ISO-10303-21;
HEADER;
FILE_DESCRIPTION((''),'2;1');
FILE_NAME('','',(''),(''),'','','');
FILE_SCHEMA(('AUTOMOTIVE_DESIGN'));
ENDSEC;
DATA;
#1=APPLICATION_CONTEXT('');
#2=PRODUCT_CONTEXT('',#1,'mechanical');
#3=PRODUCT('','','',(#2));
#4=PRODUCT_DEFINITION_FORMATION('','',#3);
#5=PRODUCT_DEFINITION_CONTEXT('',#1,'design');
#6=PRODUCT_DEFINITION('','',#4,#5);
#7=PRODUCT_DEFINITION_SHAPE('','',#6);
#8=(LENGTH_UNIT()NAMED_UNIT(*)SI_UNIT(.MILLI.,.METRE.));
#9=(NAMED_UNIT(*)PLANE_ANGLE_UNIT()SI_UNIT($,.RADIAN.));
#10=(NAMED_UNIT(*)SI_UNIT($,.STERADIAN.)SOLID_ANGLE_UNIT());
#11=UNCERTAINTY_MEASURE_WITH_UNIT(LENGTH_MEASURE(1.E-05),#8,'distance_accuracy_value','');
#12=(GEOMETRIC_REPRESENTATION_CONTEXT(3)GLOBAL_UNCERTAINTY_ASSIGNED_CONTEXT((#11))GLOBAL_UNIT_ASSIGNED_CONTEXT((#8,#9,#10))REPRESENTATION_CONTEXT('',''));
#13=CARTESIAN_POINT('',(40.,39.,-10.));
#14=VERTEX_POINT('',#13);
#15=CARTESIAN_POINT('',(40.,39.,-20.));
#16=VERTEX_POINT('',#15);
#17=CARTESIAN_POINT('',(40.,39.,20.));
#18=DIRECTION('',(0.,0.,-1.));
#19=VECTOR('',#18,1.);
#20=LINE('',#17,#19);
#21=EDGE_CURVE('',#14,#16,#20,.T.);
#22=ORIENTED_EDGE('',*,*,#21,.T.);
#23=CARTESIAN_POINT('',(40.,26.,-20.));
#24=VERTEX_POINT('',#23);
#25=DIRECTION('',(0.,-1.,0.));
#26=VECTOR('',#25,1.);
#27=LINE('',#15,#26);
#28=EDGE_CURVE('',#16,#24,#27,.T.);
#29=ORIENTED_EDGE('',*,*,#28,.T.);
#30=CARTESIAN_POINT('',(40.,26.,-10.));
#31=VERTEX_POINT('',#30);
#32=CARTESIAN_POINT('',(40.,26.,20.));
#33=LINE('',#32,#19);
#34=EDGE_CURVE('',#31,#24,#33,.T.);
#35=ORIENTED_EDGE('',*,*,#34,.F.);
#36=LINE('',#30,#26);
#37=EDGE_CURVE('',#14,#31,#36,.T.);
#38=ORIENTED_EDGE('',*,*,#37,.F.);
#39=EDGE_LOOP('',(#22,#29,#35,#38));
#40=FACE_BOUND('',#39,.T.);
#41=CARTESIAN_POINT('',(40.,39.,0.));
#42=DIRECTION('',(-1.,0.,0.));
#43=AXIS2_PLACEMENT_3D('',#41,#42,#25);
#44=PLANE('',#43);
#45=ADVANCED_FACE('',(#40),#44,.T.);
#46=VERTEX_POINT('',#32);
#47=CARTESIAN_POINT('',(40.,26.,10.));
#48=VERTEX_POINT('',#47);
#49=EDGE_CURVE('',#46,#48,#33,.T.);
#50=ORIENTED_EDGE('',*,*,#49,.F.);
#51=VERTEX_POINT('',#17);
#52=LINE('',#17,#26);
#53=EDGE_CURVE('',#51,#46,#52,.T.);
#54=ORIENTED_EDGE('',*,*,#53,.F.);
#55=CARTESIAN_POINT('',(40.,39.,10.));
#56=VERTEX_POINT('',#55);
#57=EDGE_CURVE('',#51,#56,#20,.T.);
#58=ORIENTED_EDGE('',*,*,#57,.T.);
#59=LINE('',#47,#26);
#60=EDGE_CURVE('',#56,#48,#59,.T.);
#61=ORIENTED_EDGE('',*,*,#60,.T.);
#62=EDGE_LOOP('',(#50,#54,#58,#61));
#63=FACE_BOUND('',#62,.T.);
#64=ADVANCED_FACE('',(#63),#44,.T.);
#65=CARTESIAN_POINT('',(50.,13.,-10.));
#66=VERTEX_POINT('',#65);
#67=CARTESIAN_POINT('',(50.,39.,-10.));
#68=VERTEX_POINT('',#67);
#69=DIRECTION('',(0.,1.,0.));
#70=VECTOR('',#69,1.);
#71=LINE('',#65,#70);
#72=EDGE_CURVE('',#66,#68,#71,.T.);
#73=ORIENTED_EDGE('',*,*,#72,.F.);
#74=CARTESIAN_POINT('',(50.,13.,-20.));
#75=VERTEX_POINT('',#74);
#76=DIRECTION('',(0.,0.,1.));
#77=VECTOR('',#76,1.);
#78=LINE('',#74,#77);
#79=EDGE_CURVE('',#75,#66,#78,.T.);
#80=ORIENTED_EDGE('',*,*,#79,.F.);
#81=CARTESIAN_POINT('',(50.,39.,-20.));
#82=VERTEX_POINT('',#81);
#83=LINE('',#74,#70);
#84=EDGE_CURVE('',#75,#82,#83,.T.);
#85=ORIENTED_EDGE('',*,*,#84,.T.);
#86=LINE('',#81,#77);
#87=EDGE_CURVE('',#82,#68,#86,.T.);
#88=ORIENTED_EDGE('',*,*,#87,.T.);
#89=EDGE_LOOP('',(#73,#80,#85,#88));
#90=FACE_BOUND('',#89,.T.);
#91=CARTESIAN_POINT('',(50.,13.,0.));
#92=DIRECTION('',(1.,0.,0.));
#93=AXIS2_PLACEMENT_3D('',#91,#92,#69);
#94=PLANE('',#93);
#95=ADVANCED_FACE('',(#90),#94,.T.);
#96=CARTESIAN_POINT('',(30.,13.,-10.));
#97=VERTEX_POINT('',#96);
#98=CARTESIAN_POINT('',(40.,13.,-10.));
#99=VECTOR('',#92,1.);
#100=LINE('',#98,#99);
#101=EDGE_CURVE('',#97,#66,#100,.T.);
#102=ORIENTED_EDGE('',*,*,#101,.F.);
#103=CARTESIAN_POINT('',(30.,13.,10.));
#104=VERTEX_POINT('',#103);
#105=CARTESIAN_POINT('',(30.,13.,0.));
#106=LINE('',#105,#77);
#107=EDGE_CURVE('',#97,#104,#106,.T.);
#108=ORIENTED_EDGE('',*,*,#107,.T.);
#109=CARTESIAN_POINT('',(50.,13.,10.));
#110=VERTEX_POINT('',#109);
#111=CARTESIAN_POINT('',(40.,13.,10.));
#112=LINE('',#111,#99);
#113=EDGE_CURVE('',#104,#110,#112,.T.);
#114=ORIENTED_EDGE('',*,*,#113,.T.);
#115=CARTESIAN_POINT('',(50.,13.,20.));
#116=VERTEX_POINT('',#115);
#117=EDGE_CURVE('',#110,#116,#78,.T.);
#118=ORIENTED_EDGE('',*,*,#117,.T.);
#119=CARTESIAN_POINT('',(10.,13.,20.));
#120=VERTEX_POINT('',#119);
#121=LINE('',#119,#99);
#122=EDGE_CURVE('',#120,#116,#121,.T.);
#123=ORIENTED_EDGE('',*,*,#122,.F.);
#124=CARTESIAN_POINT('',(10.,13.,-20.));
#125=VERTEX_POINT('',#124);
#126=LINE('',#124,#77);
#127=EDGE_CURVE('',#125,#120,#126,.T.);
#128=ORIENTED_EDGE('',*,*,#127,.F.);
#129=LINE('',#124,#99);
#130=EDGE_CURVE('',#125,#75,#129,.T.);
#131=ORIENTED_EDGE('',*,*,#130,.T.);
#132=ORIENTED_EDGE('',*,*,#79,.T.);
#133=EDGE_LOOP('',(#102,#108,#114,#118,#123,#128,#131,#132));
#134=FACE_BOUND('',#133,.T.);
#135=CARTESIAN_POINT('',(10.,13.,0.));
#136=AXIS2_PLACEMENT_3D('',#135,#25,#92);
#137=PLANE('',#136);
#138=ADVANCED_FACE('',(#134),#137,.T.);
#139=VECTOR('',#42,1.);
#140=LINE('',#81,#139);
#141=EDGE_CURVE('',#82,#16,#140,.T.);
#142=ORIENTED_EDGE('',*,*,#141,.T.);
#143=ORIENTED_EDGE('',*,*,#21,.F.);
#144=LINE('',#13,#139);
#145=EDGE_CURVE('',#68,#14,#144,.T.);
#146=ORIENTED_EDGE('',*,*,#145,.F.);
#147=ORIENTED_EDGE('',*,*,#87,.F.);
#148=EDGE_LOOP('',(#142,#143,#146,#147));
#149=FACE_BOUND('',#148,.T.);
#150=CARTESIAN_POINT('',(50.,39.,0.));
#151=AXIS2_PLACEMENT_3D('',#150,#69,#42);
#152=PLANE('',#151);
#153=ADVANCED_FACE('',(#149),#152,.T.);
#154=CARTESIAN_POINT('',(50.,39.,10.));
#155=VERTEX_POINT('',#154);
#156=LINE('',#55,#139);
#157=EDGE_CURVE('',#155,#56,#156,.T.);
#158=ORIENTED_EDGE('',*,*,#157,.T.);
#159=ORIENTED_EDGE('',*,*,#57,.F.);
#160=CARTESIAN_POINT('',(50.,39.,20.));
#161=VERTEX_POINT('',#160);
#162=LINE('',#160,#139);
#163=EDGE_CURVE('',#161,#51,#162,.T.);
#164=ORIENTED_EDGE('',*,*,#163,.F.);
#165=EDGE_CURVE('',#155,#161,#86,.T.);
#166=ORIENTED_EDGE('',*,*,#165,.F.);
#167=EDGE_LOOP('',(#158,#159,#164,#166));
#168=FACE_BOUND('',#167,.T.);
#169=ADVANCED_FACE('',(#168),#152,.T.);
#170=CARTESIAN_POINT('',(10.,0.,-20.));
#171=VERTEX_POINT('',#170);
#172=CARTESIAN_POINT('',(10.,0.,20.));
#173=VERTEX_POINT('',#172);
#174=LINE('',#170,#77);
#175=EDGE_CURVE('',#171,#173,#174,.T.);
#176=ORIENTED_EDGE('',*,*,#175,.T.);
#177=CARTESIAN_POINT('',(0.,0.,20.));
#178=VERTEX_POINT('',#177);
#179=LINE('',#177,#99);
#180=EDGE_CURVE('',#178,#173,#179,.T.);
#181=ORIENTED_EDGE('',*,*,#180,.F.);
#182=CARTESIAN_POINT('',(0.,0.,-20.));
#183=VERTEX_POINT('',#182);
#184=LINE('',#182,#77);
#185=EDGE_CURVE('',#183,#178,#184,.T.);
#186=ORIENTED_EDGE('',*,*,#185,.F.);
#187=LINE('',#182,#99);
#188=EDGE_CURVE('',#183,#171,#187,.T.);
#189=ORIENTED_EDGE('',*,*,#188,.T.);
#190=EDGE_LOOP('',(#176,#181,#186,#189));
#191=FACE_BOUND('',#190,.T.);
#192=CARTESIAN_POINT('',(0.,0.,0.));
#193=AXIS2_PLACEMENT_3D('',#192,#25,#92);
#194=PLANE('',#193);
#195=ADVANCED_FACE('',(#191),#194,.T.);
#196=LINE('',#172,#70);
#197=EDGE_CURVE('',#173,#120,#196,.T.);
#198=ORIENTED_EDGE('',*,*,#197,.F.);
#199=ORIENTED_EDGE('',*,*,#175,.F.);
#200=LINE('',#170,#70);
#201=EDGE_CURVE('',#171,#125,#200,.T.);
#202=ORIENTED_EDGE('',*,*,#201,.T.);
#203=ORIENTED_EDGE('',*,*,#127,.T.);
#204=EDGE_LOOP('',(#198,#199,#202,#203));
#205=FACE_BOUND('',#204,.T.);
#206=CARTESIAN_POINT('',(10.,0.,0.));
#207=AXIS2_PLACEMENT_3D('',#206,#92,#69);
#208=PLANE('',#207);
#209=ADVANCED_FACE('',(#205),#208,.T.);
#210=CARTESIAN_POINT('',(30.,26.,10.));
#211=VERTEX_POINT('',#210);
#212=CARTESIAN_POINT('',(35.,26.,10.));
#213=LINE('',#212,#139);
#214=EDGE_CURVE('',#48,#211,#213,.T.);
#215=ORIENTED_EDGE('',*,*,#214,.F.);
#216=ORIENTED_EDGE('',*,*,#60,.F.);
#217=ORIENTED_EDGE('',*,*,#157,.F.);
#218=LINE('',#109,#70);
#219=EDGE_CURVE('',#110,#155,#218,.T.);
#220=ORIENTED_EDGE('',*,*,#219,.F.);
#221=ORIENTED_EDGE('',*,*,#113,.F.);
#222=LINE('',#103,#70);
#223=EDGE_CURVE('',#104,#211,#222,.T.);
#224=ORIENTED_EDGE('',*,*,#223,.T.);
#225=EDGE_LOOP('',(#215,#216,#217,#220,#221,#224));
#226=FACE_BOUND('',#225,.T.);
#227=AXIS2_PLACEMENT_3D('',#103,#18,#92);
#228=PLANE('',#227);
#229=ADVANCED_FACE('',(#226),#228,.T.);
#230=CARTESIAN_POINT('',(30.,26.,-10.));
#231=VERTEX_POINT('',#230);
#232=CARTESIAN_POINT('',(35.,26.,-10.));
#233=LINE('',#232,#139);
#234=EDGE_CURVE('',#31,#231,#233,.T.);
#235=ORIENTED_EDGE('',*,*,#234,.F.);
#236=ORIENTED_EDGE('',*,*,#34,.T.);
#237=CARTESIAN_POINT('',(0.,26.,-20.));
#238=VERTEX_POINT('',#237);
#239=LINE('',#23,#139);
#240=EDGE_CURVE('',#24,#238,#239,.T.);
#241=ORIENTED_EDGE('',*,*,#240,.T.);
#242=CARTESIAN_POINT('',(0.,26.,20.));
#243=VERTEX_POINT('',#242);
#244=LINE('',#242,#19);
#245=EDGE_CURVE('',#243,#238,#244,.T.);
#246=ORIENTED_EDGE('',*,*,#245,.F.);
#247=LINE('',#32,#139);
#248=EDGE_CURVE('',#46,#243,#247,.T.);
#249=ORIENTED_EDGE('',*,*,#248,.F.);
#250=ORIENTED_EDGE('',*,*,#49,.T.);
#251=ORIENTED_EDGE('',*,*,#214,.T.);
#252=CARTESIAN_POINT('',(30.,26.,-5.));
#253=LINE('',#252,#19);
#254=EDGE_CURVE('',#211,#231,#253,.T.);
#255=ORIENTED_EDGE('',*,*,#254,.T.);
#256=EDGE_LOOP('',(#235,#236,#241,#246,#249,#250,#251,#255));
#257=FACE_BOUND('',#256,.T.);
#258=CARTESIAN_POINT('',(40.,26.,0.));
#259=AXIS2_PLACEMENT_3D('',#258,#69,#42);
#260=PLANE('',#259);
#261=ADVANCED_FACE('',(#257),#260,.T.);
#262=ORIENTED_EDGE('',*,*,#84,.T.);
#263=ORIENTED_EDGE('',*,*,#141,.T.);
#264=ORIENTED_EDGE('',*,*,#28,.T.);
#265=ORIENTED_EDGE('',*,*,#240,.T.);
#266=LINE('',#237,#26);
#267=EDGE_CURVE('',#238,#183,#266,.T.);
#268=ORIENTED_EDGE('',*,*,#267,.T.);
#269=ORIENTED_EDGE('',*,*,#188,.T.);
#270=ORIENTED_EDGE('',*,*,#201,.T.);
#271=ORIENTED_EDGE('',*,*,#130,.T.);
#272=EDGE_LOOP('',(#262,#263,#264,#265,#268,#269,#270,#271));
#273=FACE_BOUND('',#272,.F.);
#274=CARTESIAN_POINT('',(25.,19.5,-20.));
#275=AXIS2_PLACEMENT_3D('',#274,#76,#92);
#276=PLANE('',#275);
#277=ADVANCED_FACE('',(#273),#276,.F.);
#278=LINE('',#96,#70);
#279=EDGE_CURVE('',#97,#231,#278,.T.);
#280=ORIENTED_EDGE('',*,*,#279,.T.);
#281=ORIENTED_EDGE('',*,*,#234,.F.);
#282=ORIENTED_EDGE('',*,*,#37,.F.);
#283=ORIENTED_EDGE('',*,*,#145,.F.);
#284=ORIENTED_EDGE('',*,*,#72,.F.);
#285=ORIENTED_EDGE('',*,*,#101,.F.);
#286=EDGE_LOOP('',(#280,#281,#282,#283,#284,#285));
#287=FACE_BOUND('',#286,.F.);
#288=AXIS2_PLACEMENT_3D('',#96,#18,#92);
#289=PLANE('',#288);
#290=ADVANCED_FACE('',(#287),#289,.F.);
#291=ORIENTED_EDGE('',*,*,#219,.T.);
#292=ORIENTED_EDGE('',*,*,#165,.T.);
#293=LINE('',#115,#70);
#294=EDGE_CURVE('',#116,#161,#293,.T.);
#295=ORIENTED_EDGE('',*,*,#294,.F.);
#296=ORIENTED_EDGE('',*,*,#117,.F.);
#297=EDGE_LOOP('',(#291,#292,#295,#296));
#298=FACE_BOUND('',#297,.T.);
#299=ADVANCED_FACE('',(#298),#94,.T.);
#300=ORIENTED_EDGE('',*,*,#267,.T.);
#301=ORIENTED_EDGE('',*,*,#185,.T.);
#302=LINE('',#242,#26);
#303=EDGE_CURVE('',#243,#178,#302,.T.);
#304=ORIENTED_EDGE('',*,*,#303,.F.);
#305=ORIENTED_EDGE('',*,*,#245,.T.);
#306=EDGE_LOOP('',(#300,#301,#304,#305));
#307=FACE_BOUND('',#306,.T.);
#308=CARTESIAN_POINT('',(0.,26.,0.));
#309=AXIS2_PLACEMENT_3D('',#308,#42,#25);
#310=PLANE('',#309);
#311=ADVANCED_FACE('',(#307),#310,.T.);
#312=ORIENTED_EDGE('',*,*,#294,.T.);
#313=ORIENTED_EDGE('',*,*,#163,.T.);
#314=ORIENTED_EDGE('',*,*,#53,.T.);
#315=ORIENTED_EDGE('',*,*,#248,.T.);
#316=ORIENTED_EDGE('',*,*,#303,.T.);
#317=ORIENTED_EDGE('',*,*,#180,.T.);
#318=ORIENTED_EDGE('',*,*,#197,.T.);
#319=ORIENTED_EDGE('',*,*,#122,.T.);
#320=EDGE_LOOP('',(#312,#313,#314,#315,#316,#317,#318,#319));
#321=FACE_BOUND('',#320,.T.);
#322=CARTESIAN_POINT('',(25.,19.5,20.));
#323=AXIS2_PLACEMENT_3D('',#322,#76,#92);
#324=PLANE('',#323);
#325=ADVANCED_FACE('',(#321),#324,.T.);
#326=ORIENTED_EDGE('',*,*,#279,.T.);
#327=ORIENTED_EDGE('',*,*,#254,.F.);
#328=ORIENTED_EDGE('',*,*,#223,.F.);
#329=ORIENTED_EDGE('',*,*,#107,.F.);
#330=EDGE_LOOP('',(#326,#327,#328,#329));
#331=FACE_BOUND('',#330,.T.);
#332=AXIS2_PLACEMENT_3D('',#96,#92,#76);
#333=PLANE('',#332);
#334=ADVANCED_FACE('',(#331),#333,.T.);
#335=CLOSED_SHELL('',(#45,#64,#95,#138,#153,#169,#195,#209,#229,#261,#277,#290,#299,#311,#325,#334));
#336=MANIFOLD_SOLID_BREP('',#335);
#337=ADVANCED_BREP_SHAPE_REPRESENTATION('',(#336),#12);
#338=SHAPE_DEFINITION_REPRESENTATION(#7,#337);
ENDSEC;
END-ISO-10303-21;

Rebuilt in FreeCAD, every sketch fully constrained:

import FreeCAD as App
import Part
import Sketcher

V = App.Vector
Q = App.Units.Quantity

doc = App.newDocument("Part")
body = doc.addObject("PartDesign::Body", "Body")

sketch1 = doc.addObject("Sketcher::SketchObject", "Sketch")
body.addObject(sketch1)
sketch1.AttachmentSupport = (doc.XY_Plane, [""])
sketch1.MapMode = "FlatFace"
sketch1.addGeometry([
    Part.LineSegment(V(0, 26, 0), V(0, 0, 0)),
    Part.LineSegment(V(0, 0, 0), V(10, 0, 0)),
    Part.LineSegment(V(10, 0, 0), V(10, 13, 0)),
    Part.LineSegment(V(10, 13, 0), V(50, 13, 0)),
    Part.LineSegment(V(50, 13, 0), V(50, 39, 0)),
    Part.LineSegment(V(50, 39, 0), V(40, 39, 0)),
    Part.LineSegment(V(40, 39, 0), V(40, 26, 0)),
    Part.LineSegment(V(40, 26, 0), V(0, 26, 0)),
], False)
sketch1.addConstraint([
    Sketcher.Constraint("Coincident", 0, 2, 1, 1),
    Sketcher.Constraint("Coincident", 1, 2, 2, 1),
    Sketcher.Constraint("Coincident", 2, 2, 3, 1),
    Sketcher.Constraint("Coincident", 3, 2, 4, 1),
    Sketcher.Constraint("Coincident", 4, 2, 5, 1),
    Sketcher.Constraint("Coincident", 5, 2, 6, 1),
    Sketcher.Constraint("Coincident", 6, 2, 7, 1),
    Sketcher.Constraint("Coincident", 7, 2, 0, 1),
    Sketcher.Constraint("Vertical", 0),
    Sketcher.Constraint("Horizontal", 1),
    Sketcher.Constraint("Vertical", 2),
    Sketcher.Constraint("Horizontal", 3),
    Sketcher.Constraint("Vertical", 4),
    Sketcher.Constraint("Horizontal", 5),
    Sketcher.Constraint("Vertical", 6),
    Sketcher.Constraint("Horizontal", 7),
    Sketcher.Constraint("Coincident", 0, 2, -1, 1),
    Sketcher.Constraint("Equal", 1, 5),
    Sketcher.Constraint("Equal", 0, 4),
    Sketcher.Constraint("DistanceX", 1, 1, 1, 2, Q("10 mm")),
    Sketcher.Constraint("DistanceX", 3, 1, 3, 2, Q("40 mm")),
    Sketcher.Constraint("DistanceY", 0, 2, 0, 1, Q("26 mm")),
    Sketcher.Constraint("DistanceY", 2, 1, 2, 2, Q("13 mm")),
])
pad1 = doc.addObject("PartDesign::Pad", "Pad")
body.addObject(pad1)
pad1.Profile = sketch1
pad1.Length = 40
pad1.Midplane = True

sketch2 = doc.addObject("Sketcher::SketchObject", "Sketch001")
body.addObject(sketch2)
sketch2.AttachmentSupport = (doc.XZ_Plane, [""])
sketch2.MapMode = "FlatFace"
sketch2.AttachmentOffset = App.Placement(V(0, 0, -13), App.Rotation())
sketch2.addGeometry([
    Part.LineSegment(V(30, 10, 0), V(30, -10, 0)),
    Part.LineSegment(V(30, -10, 0), V(50, -10, 0)),
    Part.LineSegment(V(50, -10, 0), V(50, 10, 0)),
    Part.LineSegment(V(50, 10, 0), V(30, 10, 0)),
], False)
sketch2.addConstraint([
    Sketcher.Constraint("Coincident", 0, 2, 1, 1),
    Sketcher.Constraint("Coincident", 1, 2, 2, 1),
    Sketcher.Constraint("Coincident", 2, 2, 3, 1),
    Sketcher.Constraint("Coincident", 3, 2, 0, 1),
    Sketcher.Constraint("Vertical", 0),
    Sketcher.Constraint("Horizontal", 1),
    Sketcher.Constraint("Vertical", 2),
    Sketcher.Constraint("Horizontal", 3),
    Sketcher.Constraint("Equal", 3, 0),
    Sketcher.Constraint("DistanceX", 1, 1, 1, 2, Q("20 mm")),
    Sketcher.Constraint("DistanceX", -1, 1, 0, 2, Q("30 mm")),
    Sketcher.Constraint("DistanceY", 0, 2, -1, 1, Q("10 mm")),
])
pocket1 = doc.addObject("PartDesign::Pocket", "Pocket")
body.addObject(pocket1)
pocket1.Profile = sketch2
pocket1.Type = "ThroughAll"

doc.recompute()
